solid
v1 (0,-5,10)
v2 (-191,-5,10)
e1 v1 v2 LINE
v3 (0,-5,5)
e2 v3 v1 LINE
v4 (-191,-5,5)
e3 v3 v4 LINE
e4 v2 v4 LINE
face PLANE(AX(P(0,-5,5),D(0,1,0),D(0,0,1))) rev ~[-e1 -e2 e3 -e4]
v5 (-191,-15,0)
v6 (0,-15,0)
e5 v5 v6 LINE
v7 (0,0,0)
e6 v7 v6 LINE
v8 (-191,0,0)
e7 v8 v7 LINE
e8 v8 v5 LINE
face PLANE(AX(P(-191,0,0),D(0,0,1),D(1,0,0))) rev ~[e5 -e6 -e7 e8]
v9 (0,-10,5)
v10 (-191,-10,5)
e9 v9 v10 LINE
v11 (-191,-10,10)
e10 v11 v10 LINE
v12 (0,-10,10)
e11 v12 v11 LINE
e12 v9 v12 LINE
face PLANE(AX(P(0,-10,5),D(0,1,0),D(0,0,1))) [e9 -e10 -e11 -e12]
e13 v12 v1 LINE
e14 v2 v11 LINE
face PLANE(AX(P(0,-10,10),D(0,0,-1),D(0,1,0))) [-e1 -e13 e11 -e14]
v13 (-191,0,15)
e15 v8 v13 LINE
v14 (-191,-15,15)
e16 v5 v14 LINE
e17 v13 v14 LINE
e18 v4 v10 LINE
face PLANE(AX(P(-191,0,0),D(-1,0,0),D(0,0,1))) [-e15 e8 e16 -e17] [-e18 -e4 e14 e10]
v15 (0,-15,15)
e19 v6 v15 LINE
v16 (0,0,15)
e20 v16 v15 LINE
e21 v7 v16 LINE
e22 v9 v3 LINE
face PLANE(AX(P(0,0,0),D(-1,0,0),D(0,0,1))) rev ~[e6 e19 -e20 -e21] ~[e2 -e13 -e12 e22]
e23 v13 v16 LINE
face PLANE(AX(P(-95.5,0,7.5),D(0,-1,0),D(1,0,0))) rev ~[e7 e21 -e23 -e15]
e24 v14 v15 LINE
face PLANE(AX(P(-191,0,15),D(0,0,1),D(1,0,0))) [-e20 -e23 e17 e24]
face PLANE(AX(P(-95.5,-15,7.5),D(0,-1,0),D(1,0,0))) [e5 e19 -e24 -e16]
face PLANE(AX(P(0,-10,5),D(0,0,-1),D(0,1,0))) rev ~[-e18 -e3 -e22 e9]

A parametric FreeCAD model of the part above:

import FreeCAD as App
import Part
import Sketcher
from FreeCAD import Vector


def add_polygon(sketch, points):
    """Adds a closed chain of lines whose ends are joined by coincident constraints."""
    first, n = sketch.GeometryCount, len(points)
    for a, b in zip(points, points[1:] + points[:1]):
        sketch.addGeometry(Part.LineSegment(App.Vector(*a, 0), App.Vector(*b, 0)), False)
    for i in range(n):
        sketch.addConstraint(Sketcher.Constraint("Coincident", first + i, 2, first + (i + 1) % n, 1))

doc = App.newDocument("Part")
params = doc.addObject("Spreadsheet::Sheet", "Params")
for row, (alias, value) in enumerate([
    ("sketch1_width", "191 mm"),
    ("sketch1_height", "15 mm"),
    ("pad1_length", "15 mm"),
    ("sketch2_width", "5 mm"),
    ("pocket1_length", "200 mm"),
], start=1):
    params.set(f"A{row}", alias)
    params.set(f"B{row}", "=" + value)
    params.setAlias(f"B{row}", alias)

body = doc.addObject("PartDesign::Body", "Body")

# Sketch on XZ plane
sketch1 = body.newObject("Sketcher::SketchObject", "Sketch")
sketch1.AttachmentSupport = (doc.getObject("XZ_Plane"), [""])
sketch1.MapMode = "FlatFace"
add_polygon(sketch1, [(-191, 15), (-191, 0), (0, 0), (0, 15)])  # lines 0-3
sketch1.addConstraint([
    Sketcher.Constraint("Vertical", 0),
    Sketcher.Constraint("Horizontal", 1),
    Sketcher.Constraint("Vertical", 2),
    Sketcher.Constraint("Horizontal", 3),
    Sketcher.Constraint("Coincident", 1, 2, -1, 1),
    Sketcher.Constraint("DistanceX", 1, 1, 1, 2, 191.0),
    Sketcher.Constraint("DistanceY", 0, 2, 0, 1, 15.0),
])
sketch1.setExpression("Constraints[9]", "Params.sketch1_width")
sketch1.setExpression("Constraints[10]", "Params.sketch1_height")
pad1 = body.newObject("PartDesign::Pad", "Pad")
pad1.Profile = sketch1
pad1.setExpression("Length", "Params.pad1_length")

# Sketch on YZ plane
sketch2 = body.newObject("Sketcher::SketchObject", "Sketch001")
sketch2.AttachmentSupport = (doc.getObject("YZ_Plane"), [""])
sketch2.MapMode = "FlatFace"
add_polygon(sketch2, [(-10, 10), (-10, 5), (-5, 5), (-5, 10)])  # lines 0-3
sketch2.addConstraint([
    Sketcher.Constraint("Vertical", 0),
    Sketcher.Constraint("Horizontal", 1),
    Sketcher.Constraint("Vertical", 2),
    Sketcher.Constraint("Horizontal", 3),
    Sketcher.Constraint("Equal", 3, 0),
    Sketcher.Constraint("DistanceX", 1, 1, 1, 2, 5.0),
    Sketcher.Constraint("DistanceX", 0, 2, -1, 1, 10.0),
    Sketcher.Constraint("DistanceY", -1, 1, 0, 2, 5.0),
])
sketch2.setExpression("Constraints[9]", "Params.sketch2_width")
pocket1 = body.newObject("PartDesign::Pocket", "Pocket")
pocket1.Profile = sketch2
pocket1.setExpression("Length", "Params.pocket1_length")

doc.recompute()
